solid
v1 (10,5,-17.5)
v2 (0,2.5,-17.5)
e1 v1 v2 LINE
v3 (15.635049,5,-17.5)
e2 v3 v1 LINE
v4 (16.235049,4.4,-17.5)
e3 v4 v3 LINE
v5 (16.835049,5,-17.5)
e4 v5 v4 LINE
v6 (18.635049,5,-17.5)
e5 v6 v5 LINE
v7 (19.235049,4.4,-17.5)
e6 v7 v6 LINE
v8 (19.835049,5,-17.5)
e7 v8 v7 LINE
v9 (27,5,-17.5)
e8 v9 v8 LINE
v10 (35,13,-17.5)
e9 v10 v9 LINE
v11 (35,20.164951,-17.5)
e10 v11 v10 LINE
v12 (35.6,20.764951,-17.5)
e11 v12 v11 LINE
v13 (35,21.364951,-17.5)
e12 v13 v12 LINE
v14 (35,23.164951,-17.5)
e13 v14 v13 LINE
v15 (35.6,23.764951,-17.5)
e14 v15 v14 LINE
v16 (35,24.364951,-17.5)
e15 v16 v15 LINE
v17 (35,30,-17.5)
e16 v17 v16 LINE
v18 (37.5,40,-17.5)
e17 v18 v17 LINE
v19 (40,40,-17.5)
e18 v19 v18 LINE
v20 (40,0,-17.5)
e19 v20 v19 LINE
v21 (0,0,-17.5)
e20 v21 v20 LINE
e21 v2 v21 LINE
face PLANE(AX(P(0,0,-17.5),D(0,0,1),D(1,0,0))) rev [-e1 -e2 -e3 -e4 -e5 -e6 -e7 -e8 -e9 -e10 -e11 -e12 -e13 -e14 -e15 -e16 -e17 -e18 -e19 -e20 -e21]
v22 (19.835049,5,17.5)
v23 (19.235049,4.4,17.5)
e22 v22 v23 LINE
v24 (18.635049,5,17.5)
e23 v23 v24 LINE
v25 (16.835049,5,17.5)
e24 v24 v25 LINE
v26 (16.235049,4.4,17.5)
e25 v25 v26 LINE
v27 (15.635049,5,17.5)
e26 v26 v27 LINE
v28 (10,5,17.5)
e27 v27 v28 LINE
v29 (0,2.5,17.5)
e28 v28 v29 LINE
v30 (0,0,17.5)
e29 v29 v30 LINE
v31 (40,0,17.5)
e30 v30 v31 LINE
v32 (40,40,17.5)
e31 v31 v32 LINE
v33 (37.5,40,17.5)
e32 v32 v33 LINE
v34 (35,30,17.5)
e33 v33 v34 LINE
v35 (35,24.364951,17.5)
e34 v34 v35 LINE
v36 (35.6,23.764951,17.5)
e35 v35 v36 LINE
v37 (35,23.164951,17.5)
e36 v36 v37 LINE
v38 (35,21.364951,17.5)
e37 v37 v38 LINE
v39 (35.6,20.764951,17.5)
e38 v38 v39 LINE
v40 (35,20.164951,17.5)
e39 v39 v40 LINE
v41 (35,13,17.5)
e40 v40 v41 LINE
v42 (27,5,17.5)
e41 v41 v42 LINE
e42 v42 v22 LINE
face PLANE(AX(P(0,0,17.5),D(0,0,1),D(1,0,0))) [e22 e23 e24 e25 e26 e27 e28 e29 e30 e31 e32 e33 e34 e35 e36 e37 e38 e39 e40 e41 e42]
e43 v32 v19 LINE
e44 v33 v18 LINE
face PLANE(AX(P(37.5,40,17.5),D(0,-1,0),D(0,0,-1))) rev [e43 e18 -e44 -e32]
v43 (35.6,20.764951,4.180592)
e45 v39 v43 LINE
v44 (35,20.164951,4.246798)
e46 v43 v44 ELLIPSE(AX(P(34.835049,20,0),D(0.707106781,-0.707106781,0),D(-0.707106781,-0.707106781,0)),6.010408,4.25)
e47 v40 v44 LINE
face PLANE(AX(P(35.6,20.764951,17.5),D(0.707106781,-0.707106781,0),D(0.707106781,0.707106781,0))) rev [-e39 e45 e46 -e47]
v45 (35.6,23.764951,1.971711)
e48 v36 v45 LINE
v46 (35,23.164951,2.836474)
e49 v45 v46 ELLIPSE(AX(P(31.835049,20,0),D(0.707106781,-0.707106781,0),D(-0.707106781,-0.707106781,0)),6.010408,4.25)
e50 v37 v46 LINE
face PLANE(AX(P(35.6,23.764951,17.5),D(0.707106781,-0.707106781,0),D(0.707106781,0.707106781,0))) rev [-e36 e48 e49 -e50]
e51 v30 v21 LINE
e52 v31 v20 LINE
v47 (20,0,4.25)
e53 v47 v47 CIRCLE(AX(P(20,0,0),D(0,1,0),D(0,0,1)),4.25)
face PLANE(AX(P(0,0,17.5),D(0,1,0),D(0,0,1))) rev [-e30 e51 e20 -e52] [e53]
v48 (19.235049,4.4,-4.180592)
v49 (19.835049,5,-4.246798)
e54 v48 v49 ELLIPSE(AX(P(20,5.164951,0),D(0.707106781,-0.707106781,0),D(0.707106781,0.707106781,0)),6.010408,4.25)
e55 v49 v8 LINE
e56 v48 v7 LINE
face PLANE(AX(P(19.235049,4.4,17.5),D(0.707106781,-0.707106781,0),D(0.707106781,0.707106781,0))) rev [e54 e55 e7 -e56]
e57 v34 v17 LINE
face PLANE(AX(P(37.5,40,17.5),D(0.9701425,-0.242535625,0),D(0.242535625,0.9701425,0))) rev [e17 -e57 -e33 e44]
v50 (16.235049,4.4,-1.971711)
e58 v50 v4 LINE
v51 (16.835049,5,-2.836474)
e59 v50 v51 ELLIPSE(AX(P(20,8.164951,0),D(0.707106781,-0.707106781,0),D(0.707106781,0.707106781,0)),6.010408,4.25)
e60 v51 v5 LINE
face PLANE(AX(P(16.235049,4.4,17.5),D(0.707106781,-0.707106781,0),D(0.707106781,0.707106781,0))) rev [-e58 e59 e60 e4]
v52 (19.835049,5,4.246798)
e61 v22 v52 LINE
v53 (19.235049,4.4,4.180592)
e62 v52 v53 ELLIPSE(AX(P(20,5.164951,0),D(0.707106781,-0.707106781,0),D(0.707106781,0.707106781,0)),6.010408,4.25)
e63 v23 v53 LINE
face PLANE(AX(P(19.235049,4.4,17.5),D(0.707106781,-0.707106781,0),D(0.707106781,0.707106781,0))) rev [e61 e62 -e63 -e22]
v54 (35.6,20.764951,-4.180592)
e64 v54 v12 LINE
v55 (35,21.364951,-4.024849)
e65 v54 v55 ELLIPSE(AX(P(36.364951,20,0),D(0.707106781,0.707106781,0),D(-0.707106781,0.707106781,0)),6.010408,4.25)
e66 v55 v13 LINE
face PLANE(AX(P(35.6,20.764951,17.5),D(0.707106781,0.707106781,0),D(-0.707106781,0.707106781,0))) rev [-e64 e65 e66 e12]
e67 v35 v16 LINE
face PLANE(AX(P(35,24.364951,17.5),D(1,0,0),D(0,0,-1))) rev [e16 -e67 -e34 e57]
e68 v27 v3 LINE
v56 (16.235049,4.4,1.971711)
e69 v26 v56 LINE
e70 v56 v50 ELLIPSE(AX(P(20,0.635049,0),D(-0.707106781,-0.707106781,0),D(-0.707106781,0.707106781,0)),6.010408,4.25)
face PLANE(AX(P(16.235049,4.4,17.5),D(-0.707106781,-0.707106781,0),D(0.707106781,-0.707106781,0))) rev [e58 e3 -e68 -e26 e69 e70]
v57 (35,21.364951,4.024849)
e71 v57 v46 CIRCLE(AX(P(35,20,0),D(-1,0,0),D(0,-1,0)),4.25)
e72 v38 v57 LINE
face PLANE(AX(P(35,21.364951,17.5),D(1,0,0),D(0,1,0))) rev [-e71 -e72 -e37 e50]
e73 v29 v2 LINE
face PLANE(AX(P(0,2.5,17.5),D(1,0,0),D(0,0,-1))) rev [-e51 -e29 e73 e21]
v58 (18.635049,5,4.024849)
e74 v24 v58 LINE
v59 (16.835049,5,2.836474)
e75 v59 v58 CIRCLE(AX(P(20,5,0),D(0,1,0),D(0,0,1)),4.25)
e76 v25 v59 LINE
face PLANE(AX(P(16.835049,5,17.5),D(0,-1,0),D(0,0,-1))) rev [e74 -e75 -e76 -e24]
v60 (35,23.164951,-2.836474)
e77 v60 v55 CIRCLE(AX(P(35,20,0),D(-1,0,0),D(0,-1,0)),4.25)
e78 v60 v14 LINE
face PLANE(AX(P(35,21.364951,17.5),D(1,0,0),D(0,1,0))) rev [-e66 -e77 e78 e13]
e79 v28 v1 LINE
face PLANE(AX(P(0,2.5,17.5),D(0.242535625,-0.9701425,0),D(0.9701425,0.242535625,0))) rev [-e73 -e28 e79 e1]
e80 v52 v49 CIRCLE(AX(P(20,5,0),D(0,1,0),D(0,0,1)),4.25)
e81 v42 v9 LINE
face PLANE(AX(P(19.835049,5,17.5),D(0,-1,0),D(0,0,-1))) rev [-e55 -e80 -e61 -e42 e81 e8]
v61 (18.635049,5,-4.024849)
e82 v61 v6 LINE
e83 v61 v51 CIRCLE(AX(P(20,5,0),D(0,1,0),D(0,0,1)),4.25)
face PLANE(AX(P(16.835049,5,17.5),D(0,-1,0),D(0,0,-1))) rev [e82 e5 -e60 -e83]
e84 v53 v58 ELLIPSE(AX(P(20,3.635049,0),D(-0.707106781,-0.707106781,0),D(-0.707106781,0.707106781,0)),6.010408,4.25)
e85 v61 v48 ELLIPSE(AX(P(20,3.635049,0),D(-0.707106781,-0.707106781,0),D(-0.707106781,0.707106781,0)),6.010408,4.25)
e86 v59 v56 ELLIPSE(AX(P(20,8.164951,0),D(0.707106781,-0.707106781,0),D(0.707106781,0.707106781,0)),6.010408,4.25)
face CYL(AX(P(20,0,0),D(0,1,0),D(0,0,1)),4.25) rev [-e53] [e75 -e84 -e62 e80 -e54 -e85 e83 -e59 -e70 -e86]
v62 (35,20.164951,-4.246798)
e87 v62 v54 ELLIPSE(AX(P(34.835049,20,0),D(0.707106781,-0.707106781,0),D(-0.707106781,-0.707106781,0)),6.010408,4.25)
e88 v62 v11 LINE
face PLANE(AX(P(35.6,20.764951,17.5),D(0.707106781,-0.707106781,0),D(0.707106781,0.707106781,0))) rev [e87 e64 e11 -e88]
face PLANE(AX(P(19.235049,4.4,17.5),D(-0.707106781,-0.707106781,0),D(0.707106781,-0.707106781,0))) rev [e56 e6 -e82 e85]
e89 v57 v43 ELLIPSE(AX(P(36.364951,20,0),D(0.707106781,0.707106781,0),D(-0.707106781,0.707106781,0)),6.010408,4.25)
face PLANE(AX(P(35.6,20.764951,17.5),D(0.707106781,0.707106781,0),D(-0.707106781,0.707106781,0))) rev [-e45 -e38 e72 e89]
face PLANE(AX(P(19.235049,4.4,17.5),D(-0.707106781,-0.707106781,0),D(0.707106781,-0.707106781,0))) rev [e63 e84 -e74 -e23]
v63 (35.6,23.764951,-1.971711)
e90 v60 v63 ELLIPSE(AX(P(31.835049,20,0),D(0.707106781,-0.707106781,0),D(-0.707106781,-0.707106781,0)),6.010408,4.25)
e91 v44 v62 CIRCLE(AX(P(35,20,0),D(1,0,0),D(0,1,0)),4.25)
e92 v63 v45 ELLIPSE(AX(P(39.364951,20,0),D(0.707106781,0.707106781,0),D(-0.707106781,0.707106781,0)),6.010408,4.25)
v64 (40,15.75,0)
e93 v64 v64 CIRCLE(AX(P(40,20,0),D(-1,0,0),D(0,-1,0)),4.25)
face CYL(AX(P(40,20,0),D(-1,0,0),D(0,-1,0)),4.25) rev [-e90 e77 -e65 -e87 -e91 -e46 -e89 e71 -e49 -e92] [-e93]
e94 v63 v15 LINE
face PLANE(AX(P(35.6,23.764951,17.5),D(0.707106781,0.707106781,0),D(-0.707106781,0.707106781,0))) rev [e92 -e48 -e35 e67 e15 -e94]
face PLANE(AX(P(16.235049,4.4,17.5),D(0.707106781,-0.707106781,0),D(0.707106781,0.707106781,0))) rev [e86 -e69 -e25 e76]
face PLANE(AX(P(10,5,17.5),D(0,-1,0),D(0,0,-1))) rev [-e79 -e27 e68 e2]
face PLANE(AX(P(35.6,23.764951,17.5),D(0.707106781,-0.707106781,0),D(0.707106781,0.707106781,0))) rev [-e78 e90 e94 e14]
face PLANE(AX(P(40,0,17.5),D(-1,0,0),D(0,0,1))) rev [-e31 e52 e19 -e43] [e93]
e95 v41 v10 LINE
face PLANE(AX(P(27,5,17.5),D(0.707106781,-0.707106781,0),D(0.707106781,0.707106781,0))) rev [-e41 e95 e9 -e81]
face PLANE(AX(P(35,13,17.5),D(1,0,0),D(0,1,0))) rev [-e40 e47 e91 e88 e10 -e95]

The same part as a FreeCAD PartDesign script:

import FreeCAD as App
import Part
import Sketcher
from FreeCAD import Vector
Q = App.Units.Quantity

doc = App.newDocument("Part")
body = doc.addObject("PartDesign::Body", "Body")

# Sketch on XY plane
sketch1 = doc.addObject("Sketcher::SketchObject", "Sketch")
body.addObject(sketch1)
sketch1.AttachmentSupport = (doc.XY_Plane, [""])
sketch1.MapMode = "FlatFace"
sketch1.addGeometry([
    Part.LineSegment(Vector(0, 0, 0), Vector(40, 0, 0)),  # 0
    Part.LineSegment(Vector(40, 0, 0), Vector(40, 40, 0)),  # 1
    Part.LineSegment(Vector(40, 40, 0), Vector(37.5, 40, 0)),  # 2
    Part.LineSegment(Vector(37.5, 40, 0), Vector(35, 30, 0)),  # 3
    Part.LineSegment(Vector(35, 30, 0), Vector(35, 24.4, 0)),  # 4
    Part.LineSegment(Vector(35, 24.4, 0), Vector(35.6, 23.8, 0)),  # 5
    Part.LineSegment(Vector(35.6, 23.8, 0), Vector(35, 23.2, 0)),  # 6
    Part.LineSegment(Vector(35, 23.2, 0), Vector(35, 21.4, 0)),  # 7
    Part.LineSegment(Vector(35, 21.4, 0), Vector(35.6, 20.8, 0)),  # 8
    Part.LineSegment(Vector(35.6, 20.8, 0), Vector(35, 20.2, 0)),  # 9
    Part.LineSegment(Vector(35, 20.2, 0), Vector(35, 13, 0)),  # 10
    Part.LineSegment(Vector(35, 13, 0), Vector(27, 5, 0)),  # 11
    Part.LineSegment(Vector(27, 5, 0), Vector(19.8, 5, 0)),  # 12
    Part.LineSegment(Vector(19.8, 5, 0), Vector(19.2, 4.4, 0)),  # 13
    Part.LineSegment(Vector(19.2, 4.4, 0), Vector(18.6, 5, 0)),  # 14
    Part.LineSegment(Vector(18.6, 5, 0), Vector(16.8, 5, 0)),  # 15
    Part.LineSegment(Vector(16.8, 5, 0), Vector(16.2, 4.4, 0)),  # 16
    Part.LineSegment(Vector(16.2, 4.4, 0), Vector(15.6, 5, 0)),  # 17
    Part.LineSegment(Vector(15.6, 5, 0), Vector(10, 5, 0)),  # 18
    Part.LineSegment(Vector(10, 5, 0), Vector(0, 2.5, 0)),  # 19
    Part.LineSegment(Vector(0, 2.5, 0), Vector(0, 0, 0)),  # 20
], False)
sketch1.addConstraint([
    Sketcher.Constraint("Coincident", 0, 2, 1, 1),
    Sketcher.Constraint("Coincident", 1, 2, 2, 1),
    Sketcher.Constraint("Coincident", 2, 2, 3, 1),
    Sketcher.Constraint("Coincident", 3, 2, 4, 1),
    Sketcher.Constraint("Coincident", 4, 2, 5, 1),
    Sketcher.Constraint("Coincident", 5, 2, 6, 1),
    Sketcher.Constraint("Coincident", 6, 2, 7, 1),
    Sketcher.Constraint("Coincident", 7, 2, 8, 1),
    Sketcher.Constraint("Coincident", 8, 2, 9, 1),
    Sketcher.Constraint("Coincident", 9, 2, 10, 1),
    Sketcher.Constraint("Coincident", 10, 2, 11, 1),
    Sketcher.Constraint("Coincident", 11, 2, 12, 1),
    Sketcher.Constraint("Coincident", 12, 2, 13, 1),
    Sketcher.Constraint("Coincident", 13, 2, 14, 1),
    Sketcher.Constraint("Coincident", 14, 2, 15, 1),
    Sketcher.Constraint("Coincident", 15, 2, 16, 1),
    Sketcher.Constraint("Coincident", 16, 2, 17, 1),
    Sketcher.Constraint("Coincident", 17, 2, 18, 1),
    Sketcher.Constraint("Coincident", 18, 2, 19, 1),
    Sketcher.Constraint("Coincident", 19, 2, 20, 1),
    Sketcher.Constraint("Coincident", 20, 2, 0, 1),
    Sketcher.Constraint("Horizontal", 0),
    Sketcher.Constraint("Vertical", 1),
    Sketcher.Constraint("Horizontal", 2),
    Sketcher.Constraint("Vertical", 4),
    Sketcher.Constraint("Vertical", 7),
    Sketcher.Constraint("Vertical", 10),
    Sketcher.Constraint("Horizontal", 12),
    Sketcher.Constraint("Horizontal", 15),
    Sketcher.Constraint("Horizontal", 18),
    Sketcher.Constraint("Vertical", 20),
    Sketcher.Constraint("Coincident", 20, 2, -1, 1),
    Sketcher.Constraint("Perpendicular", 5, 6),
    Sketcher.Constraint("Perpendicular", 6, 8),
    Sketcher.Constraint("Perpendicular", 8, 9),
    Sketcher.Constraint("Parallel", 9, 11),
    Sketcher.Constraint("Parallel", 11, 13),
    Sketcher.Constraint("Perpendicular", 13, 14),
    Sketcher.Constraint("Perpendicular", 14, 16),
    Sketcher.Constraint("Perpendicular", 16, 17),
    Sketcher.Constraint("Horizontal", 12, 2, 14, 2),
    Sketcher.Constraint("Horizontal", 13, 2, 16, 2),
    Sketcher.Constraint("Horizontal", 15, 2, 17, 2),
    Sketcher.Constraint("Vertical", 4, 2, 6, 2),
    Sketcher.Constraint("Vertical", 5, 2, 8, 2),
    Sketcher.Constraint("Vertical", 7, 2, 9, 2),
    Sketcher.Constraint("Equal", 0, 1),
    Sketcher.Constraint("Equal", 18, 4),
    Sketcher.Constraint("Equal", 15, 7),
    Sketcher.Constraint("Equal", 12, 10),
    Sketcher.Constraint("Equal", 2, 20),
    Sketcher.Constraint("Equal", 5, 6),
    Sketcher.Constraint("Equal", 9, 13),
    Sketcher.Constraint("Equal", 3, 19),
    Sketcher.Constraint("DistanceX", 0, 1, 0, 2, Q("40 mm")),
    Sketcher.Constraint("DistanceX", 2, 2, 2, 1, Q("2.5 mm")),
    Sketcher.Constraint("DistanceX", 15, 2, 15, 1, Q("1.8 mm")),
    Sketcher.Constraint("DistanceX", -1, 1, 3, 2, Q("35 mm")),
    Sketcher.Constraint("DistanceY", -1, 1, 3, 2, Q("30 mm")),
    Sketcher.Constraint("DistanceY", -1, 1, 10, 2, Q("13 mm")),
    Sketcher.Constraint("DistanceY", 7, 2, 4, 2, Q("3 mm")),
    Sketcher.Constraint("DistanceX", 12, 2, 12, 1, Q("7.164951 mm")),
])
pad1 = doc.addObject("PartDesign::Pad", "Pad")
body.addObject(pad1)
pad1.Profile = sketch1
pad1.Length = 35
pad1.Midplane = True

# Sketch on XZ plane
sketch2 = doc.addObject("Sketcher::SketchObject", "Sketch001")
body.addObject(sketch2)
sketch2.AttachmentSupport = (doc.XZ_Plane, [""])
sketch2.MapMode = "FlatFace"
sketch2.AttachmentOffset = App.Placement(Vector(0, 0, -5), App.Rotation())
sketch2.addGeometry(Part.Circle(Vector(20, 0, 0), Vector(0, 0, 1), 4.2), False)
sketch2.addConstraint([
    Sketcher.Constraint("PointOnObject", 0, 3, -1),
    Sketcher.Constraint("Diameter", 0, Q("8.5 mm")),
    Sketcher.Constraint("DistanceX", -1, 1, 0, 3, Q("20 mm")),
])
pocket1 = doc.addObject("PartDesign::Pocket", "Pocket")
body.addObject(pocket1)
pocket1.Profile = sketch2
pocket1.Type = "ThroughAll"
pocket1.Reversed = True

# Sketch on YZ plane
sketch3 = doc.addObject("Sketcher::SketchObject", "Sketch002")
body.addObject(sketch3)
sketch3.AttachmentSupport = (doc.YZ_Plane, [""])
sketch3.MapMode = "FlatFace"
sketch3.AttachmentOffset = App.Placement(Vector(0, 0, 35), App.Rotation())
sketch3.addGeometry(Part.Circle(Vector(20, 0, 0), Vector(0, 0, 1), 4.2), False)
sketch3.addConstraint([
    Sketcher.Constraint("PointOnObject", 0, 3, -1),
    Sketcher.Constraint("Diameter", 0, Q("8.5 mm")),
    Sketcher.Constraint("DistanceX", -1, 1, 0, 3, Q("20 mm")),
])
pocket2 = doc.addObject("PartDesign::Pocket", "Pocket001")
body.addObject(pocket2)
pocket2.Profile = sketch3
pocket2.Type = "ThroughAll"
pocket2.Reversed = True

doc.recompute()
